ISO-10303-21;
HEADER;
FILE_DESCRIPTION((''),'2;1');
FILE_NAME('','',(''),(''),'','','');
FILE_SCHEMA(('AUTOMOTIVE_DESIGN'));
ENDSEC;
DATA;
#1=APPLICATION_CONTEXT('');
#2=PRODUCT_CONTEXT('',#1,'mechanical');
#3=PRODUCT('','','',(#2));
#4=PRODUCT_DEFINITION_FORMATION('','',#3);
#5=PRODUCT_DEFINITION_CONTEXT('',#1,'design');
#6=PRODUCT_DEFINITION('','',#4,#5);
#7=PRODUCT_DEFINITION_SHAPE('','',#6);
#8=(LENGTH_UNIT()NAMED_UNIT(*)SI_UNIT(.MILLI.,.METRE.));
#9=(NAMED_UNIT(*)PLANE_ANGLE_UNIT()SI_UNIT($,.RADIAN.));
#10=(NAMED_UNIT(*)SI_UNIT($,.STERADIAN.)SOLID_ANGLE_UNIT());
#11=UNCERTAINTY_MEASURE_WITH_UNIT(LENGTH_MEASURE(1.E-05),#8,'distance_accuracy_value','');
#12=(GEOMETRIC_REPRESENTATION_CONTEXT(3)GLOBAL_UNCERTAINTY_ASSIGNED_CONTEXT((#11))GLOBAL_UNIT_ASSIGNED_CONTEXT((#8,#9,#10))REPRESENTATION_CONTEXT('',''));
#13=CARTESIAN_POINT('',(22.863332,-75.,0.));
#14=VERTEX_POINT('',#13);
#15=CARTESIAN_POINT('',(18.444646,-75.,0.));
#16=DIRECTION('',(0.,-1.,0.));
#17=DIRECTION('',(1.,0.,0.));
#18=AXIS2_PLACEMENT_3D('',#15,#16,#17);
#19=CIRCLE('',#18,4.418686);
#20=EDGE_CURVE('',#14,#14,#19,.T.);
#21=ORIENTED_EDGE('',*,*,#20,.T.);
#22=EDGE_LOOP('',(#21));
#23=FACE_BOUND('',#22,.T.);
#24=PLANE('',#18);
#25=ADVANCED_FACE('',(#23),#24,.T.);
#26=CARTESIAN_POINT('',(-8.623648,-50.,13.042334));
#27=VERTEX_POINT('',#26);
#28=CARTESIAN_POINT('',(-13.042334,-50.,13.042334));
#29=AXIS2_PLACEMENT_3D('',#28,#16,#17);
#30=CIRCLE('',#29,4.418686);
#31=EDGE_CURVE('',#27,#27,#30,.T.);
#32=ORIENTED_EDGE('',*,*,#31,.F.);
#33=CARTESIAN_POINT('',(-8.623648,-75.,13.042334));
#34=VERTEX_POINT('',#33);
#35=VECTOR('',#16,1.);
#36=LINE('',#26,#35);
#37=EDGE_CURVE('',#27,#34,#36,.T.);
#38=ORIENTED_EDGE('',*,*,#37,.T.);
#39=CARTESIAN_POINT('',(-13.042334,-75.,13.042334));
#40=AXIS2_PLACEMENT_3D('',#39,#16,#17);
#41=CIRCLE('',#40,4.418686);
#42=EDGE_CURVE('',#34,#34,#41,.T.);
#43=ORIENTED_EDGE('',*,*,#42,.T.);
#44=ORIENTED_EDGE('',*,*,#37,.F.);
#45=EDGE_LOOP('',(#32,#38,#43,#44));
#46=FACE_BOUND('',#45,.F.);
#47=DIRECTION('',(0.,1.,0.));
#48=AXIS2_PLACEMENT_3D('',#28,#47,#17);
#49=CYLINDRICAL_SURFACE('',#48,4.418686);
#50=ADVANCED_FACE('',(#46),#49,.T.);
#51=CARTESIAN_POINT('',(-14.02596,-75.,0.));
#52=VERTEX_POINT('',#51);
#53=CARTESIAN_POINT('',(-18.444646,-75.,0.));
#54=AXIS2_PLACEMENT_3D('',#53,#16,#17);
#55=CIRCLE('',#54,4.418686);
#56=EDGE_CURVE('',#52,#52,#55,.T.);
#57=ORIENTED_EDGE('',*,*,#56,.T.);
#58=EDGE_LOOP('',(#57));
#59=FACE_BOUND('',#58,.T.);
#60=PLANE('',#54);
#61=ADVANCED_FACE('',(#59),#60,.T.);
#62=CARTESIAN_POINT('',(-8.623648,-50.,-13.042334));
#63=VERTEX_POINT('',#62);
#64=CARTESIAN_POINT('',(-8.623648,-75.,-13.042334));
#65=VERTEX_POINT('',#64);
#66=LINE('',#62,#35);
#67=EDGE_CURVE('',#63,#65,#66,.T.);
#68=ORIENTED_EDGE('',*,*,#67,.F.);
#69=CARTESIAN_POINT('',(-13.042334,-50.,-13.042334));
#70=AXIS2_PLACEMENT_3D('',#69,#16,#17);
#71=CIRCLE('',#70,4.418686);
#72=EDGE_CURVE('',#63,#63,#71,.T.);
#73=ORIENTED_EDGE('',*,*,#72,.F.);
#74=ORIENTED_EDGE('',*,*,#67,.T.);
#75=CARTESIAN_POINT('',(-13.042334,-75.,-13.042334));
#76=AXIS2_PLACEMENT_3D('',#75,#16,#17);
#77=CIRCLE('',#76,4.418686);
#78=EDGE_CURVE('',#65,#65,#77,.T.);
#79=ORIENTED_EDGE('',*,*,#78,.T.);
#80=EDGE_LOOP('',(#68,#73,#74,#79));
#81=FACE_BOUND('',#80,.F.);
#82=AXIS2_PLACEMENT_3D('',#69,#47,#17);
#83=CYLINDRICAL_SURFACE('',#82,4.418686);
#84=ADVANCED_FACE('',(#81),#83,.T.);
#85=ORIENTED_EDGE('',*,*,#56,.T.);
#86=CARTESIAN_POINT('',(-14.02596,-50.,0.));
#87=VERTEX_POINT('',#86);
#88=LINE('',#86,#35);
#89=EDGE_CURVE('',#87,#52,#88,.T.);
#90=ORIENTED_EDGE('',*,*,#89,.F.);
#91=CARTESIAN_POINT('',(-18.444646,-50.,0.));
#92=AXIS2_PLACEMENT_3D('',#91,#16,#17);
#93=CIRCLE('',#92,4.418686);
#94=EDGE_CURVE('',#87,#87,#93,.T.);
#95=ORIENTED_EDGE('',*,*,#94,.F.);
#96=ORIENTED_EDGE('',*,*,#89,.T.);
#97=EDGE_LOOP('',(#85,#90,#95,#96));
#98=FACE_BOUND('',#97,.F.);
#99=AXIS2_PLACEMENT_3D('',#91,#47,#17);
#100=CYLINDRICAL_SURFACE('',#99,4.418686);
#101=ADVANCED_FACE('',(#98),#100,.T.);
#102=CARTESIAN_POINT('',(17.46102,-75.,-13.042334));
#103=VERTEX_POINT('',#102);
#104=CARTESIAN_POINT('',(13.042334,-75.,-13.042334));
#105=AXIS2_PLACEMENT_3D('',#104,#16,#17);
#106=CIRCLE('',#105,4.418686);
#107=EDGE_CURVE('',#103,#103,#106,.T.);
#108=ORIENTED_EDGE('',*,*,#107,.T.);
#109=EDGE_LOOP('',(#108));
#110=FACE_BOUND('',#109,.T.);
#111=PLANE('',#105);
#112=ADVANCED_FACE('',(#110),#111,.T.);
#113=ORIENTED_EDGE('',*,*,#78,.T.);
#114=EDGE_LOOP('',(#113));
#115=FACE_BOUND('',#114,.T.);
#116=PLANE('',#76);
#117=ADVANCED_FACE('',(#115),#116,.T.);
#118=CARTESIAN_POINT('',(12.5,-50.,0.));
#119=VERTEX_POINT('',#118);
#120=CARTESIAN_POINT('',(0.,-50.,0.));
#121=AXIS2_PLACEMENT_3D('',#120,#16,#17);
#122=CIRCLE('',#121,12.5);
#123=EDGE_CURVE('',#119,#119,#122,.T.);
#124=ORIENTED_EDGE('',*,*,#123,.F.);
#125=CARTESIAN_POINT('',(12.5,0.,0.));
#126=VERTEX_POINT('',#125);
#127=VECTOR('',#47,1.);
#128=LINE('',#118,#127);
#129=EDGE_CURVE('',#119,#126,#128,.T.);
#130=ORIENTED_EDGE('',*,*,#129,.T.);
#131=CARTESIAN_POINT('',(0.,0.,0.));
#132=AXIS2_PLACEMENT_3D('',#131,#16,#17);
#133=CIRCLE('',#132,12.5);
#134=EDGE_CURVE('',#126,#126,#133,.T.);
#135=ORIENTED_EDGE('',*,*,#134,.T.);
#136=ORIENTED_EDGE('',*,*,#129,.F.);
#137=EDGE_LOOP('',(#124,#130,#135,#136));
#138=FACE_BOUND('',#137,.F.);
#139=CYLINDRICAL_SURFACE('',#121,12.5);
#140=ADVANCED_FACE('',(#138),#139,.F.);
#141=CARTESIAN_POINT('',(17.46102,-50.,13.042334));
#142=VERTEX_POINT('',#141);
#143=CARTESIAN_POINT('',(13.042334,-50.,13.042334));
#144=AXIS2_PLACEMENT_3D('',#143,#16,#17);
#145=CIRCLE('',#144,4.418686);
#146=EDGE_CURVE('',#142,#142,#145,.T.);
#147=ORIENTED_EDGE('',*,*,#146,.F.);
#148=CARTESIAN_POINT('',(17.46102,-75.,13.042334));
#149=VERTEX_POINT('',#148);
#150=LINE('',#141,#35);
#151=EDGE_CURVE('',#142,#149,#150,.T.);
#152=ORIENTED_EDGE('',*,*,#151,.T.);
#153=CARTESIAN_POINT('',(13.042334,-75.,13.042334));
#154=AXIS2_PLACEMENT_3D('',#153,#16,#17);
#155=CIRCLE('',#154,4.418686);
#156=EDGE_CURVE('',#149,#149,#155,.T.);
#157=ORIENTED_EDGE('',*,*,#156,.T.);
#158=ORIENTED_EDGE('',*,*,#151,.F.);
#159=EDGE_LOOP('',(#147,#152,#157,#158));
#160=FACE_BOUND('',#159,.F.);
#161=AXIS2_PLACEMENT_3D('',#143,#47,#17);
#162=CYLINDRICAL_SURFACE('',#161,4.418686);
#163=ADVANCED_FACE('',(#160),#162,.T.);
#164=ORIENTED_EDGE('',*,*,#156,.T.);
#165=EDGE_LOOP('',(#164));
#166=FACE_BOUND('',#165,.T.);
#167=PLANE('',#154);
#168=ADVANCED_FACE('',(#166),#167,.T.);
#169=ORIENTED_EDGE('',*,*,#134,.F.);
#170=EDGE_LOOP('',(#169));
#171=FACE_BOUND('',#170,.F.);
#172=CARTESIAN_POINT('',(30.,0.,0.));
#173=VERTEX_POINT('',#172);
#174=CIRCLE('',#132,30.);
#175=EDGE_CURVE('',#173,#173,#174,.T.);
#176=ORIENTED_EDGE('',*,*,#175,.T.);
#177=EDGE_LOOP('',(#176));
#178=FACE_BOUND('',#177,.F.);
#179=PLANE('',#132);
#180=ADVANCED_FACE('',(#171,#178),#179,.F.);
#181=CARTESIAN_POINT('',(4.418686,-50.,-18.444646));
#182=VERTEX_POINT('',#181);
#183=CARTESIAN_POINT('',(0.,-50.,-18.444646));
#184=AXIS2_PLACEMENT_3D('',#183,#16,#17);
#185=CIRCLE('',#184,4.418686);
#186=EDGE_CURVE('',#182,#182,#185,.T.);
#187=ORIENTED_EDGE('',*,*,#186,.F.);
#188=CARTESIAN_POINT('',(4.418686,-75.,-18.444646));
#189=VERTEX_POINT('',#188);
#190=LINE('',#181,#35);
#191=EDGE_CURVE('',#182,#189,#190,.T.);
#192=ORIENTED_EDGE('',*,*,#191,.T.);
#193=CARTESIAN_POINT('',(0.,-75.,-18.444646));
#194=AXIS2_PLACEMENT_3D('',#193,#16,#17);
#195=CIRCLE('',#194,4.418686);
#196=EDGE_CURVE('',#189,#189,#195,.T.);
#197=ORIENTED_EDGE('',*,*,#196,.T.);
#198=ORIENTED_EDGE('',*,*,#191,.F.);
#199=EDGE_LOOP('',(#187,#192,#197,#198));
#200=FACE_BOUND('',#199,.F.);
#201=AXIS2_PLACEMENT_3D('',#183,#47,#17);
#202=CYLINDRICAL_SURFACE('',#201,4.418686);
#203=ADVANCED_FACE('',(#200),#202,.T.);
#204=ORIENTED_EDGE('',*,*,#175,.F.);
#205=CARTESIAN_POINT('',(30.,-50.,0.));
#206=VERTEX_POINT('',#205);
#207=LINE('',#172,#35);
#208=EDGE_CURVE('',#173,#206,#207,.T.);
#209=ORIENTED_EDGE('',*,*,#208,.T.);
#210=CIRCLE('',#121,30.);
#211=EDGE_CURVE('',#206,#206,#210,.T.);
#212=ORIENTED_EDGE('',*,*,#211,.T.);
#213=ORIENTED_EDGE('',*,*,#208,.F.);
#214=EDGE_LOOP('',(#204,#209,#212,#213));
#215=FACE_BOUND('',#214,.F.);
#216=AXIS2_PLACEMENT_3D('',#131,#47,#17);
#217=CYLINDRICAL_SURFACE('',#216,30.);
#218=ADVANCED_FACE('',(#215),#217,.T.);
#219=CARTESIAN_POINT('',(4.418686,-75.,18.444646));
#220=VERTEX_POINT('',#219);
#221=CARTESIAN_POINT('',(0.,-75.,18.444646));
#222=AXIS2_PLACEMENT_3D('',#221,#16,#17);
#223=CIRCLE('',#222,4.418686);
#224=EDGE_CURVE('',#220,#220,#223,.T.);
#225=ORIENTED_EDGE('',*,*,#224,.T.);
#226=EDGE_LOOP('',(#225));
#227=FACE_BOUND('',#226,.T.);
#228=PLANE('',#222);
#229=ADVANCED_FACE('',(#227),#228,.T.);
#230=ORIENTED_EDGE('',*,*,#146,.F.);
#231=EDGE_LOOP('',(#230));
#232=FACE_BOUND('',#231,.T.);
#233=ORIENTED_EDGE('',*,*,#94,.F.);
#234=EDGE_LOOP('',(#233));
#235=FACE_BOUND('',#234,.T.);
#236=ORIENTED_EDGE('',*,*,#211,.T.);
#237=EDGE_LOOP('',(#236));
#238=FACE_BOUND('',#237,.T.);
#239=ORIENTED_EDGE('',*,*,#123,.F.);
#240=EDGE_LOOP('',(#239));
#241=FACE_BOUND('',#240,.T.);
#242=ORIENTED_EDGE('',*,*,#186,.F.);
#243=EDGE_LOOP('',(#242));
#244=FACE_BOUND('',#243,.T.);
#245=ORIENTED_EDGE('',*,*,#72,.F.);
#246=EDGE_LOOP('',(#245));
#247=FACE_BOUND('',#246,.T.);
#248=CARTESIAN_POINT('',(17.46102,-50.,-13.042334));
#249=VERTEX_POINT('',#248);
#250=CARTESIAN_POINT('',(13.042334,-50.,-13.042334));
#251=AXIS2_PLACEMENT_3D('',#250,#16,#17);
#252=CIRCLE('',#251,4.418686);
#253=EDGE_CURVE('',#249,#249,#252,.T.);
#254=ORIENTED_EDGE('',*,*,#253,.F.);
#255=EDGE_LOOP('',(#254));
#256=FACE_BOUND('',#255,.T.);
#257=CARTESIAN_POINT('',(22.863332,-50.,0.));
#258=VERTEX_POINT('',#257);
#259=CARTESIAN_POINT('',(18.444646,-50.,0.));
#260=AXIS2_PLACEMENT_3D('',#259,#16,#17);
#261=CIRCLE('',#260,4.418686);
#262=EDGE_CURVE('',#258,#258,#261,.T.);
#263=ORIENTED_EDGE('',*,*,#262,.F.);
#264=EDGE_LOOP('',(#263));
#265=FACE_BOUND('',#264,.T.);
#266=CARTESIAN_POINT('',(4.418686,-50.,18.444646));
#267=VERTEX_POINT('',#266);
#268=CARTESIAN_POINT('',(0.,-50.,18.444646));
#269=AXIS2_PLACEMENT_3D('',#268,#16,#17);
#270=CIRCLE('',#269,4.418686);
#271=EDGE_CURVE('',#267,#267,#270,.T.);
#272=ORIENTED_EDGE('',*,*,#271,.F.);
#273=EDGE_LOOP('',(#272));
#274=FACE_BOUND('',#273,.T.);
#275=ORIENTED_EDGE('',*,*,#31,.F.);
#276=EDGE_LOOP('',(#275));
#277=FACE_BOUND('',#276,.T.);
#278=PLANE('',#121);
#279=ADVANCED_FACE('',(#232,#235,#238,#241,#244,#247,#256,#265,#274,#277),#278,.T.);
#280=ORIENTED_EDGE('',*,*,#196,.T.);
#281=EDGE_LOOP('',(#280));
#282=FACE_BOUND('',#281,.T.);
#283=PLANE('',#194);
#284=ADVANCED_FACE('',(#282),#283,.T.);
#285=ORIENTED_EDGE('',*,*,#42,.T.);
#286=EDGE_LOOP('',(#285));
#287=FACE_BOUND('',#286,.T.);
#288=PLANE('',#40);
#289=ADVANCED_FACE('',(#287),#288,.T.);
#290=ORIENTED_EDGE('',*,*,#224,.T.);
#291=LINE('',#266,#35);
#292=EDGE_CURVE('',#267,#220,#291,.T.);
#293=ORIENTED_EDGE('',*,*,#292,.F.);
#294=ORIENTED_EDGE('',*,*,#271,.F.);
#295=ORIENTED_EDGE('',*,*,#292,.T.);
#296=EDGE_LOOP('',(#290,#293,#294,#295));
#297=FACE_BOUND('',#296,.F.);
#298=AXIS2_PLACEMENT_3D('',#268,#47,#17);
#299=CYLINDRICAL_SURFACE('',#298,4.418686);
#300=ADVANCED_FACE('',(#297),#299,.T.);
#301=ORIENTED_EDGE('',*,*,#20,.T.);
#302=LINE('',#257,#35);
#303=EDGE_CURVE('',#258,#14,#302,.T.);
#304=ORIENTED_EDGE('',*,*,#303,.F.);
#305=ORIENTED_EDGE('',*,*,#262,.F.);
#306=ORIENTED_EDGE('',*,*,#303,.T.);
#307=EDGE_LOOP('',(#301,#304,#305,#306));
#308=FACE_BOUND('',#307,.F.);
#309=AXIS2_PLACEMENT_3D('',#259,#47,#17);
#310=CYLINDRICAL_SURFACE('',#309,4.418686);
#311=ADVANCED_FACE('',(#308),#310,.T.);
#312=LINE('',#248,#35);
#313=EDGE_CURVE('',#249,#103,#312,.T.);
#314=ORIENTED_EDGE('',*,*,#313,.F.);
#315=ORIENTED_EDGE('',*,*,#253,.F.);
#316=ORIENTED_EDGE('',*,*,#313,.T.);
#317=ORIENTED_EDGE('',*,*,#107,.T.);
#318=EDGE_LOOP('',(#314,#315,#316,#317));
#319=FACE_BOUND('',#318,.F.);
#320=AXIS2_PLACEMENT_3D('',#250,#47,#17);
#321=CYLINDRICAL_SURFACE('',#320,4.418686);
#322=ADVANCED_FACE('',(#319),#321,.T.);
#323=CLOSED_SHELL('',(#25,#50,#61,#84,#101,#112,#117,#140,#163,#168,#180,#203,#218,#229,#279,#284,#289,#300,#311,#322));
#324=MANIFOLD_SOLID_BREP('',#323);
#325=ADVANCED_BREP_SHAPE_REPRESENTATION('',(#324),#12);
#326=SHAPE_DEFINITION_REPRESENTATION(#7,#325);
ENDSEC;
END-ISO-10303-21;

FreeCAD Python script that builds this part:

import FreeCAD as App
import Part
import Sketcher

V = App.Vector

doc = App.newDocument("Part")
body = doc.addObject("PartDesign::Body", "Body")

sketch1 = doc.addObject("Sketcher::SketchObject", "Sketch")
body.addObject(sketch1)
sketch1.AttachmentSupport = (doc.XZ_Plane, [""])
sketch1.MapMode = "FlatFace"
sketch1.addGeometry(Part.Circle(V(0, 0, 0), V(0, 0, 1), 30), False)
sketch1.addConstraint([
    Sketcher.Constraint("Coincident", 0, 3, -1, 1),
    Sketcher.Constraint("Diameter", 0, 60.0),
])
pad1 = doc.addObject("PartDesign::Pad", "Pad")
body.addObject(pad1)
pad1.Profile = sketch1
pad1.Length = 50

sketch2 = doc.addObject("Sketcher::SketchObject", "Sketch001")
body.addObject(sketch2)
sketch2.AttachmentSupport = (doc.XZ_Plane, [""])
sketch2.MapMode = "FlatFace"
sketch2.AttachmentOffset = App.Placement(V(0, 0, 50), App.Rotation())
sketch2.addGeometry(Part.Circle(V(0, 0, 0), V(0, 0, 1), 12), False)
sketch2.addConstraint([
    Sketcher.Constraint("Coincident", 0, 3, -1, 1),
    Sketcher.Constraint("Diameter", 0, 25.0),
])
pocket1 = doc.addObject("PartDesign::Pocket", "Pocket")
body.addObject(pocket1)
pocket1.Profile = sketch2
pocket1.Type = "ThroughAll"

sketch3 = doc.addObject("Sketcher::SketchObject", "Sketch002")
body.addObject(sketch3)
sketch3.AttachmentSupport = (doc.XZ_Plane, [""])
sketch3.MapMode = "FlatFace"
sketch3.AttachmentOffset = App.Placement(V(0, 0, 50), App.Rotation())
sketch3.addGeometry([
    Part.Circle(V(18.4, 0, 0), V(0, 0, 1), 4.4),
    Part.Circle(V(13, 13, 0), V(0, 0, 1), 4.4),
    Part.Circle(V(0, 18.4, 0), V(0, 0, 1), 4.4),
    Part.Circle(V(-13, 13, 0), V(0, 0, 1), 4.4),
    Part.Circle(V(-18.4, 0, 0), V(0, 0, 1), 4.4),
    Part.Circle(V(-13, -13, 0), V(0, 0, 1), 4.4),
    Part.Circle(V(0, -18.4, 0), V(0, 0, 1), 4.4),
    Part.Circle(V(13, -13, 0), V(0, 0, 1), 4.4),
], False)
sketch3.addConstraint([
    Sketcher.Constraint("Equal", 0, 1),
    Sketcher.Constraint("Equal", 1, 2),
    Sketcher.Constraint("Equal", 2, 3),
    Sketcher.Constraint("Equal", 3, 4),
    Sketcher.Constraint("Equal", 4, 5),
    Sketcher.Constraint("Equal", 5, 6),
    Sketcher.Constraint("Equal", 6, 7),
    Sketcher.Constraint("Symmetric", 0, 3, 4, 3, -1, 1),
    Sketcher.Constraint("Symmetric", 1, 3, 5, 3, -1, 1),
    Sketcher.Constraint("Symmetric", 2, 3, 6, 3, -1, 1),
    Sketcher.Constraint("Symmetric", 3, 3, 7, 3, -1, 1),
    Sketcher.Constraint("Symmetric", 1, 3, 3, 3, -2),
    Sketcher.Constraint("PointOnObject", 0, 3, -1),
    Sketcher.Constraint("PointOnObject", 2, 3, -2),
    Sketcher.Constraint("Diameter", 0, 8.837372),
    Sketcher.Constraint("DistanceX", 1, 3, 0, 3, 5.402312),
    Sketcher.Constraint("DistanceY", 1, 3, 2, 3, 5.402312),
    Sketcher.Constraint("DistanceX", 3, 3, 1, 3, 26.084668),
    Sketcher.Constraint("DistanceY", 5, 3, 3, 3, 26.084668),
])
pad2 = doc.addObject("PartDesign::Pad", "Pad001")
body.addObject(pad2)
pad2.Profile = sketch3
pad2.Length = 25

doc.recompute()
